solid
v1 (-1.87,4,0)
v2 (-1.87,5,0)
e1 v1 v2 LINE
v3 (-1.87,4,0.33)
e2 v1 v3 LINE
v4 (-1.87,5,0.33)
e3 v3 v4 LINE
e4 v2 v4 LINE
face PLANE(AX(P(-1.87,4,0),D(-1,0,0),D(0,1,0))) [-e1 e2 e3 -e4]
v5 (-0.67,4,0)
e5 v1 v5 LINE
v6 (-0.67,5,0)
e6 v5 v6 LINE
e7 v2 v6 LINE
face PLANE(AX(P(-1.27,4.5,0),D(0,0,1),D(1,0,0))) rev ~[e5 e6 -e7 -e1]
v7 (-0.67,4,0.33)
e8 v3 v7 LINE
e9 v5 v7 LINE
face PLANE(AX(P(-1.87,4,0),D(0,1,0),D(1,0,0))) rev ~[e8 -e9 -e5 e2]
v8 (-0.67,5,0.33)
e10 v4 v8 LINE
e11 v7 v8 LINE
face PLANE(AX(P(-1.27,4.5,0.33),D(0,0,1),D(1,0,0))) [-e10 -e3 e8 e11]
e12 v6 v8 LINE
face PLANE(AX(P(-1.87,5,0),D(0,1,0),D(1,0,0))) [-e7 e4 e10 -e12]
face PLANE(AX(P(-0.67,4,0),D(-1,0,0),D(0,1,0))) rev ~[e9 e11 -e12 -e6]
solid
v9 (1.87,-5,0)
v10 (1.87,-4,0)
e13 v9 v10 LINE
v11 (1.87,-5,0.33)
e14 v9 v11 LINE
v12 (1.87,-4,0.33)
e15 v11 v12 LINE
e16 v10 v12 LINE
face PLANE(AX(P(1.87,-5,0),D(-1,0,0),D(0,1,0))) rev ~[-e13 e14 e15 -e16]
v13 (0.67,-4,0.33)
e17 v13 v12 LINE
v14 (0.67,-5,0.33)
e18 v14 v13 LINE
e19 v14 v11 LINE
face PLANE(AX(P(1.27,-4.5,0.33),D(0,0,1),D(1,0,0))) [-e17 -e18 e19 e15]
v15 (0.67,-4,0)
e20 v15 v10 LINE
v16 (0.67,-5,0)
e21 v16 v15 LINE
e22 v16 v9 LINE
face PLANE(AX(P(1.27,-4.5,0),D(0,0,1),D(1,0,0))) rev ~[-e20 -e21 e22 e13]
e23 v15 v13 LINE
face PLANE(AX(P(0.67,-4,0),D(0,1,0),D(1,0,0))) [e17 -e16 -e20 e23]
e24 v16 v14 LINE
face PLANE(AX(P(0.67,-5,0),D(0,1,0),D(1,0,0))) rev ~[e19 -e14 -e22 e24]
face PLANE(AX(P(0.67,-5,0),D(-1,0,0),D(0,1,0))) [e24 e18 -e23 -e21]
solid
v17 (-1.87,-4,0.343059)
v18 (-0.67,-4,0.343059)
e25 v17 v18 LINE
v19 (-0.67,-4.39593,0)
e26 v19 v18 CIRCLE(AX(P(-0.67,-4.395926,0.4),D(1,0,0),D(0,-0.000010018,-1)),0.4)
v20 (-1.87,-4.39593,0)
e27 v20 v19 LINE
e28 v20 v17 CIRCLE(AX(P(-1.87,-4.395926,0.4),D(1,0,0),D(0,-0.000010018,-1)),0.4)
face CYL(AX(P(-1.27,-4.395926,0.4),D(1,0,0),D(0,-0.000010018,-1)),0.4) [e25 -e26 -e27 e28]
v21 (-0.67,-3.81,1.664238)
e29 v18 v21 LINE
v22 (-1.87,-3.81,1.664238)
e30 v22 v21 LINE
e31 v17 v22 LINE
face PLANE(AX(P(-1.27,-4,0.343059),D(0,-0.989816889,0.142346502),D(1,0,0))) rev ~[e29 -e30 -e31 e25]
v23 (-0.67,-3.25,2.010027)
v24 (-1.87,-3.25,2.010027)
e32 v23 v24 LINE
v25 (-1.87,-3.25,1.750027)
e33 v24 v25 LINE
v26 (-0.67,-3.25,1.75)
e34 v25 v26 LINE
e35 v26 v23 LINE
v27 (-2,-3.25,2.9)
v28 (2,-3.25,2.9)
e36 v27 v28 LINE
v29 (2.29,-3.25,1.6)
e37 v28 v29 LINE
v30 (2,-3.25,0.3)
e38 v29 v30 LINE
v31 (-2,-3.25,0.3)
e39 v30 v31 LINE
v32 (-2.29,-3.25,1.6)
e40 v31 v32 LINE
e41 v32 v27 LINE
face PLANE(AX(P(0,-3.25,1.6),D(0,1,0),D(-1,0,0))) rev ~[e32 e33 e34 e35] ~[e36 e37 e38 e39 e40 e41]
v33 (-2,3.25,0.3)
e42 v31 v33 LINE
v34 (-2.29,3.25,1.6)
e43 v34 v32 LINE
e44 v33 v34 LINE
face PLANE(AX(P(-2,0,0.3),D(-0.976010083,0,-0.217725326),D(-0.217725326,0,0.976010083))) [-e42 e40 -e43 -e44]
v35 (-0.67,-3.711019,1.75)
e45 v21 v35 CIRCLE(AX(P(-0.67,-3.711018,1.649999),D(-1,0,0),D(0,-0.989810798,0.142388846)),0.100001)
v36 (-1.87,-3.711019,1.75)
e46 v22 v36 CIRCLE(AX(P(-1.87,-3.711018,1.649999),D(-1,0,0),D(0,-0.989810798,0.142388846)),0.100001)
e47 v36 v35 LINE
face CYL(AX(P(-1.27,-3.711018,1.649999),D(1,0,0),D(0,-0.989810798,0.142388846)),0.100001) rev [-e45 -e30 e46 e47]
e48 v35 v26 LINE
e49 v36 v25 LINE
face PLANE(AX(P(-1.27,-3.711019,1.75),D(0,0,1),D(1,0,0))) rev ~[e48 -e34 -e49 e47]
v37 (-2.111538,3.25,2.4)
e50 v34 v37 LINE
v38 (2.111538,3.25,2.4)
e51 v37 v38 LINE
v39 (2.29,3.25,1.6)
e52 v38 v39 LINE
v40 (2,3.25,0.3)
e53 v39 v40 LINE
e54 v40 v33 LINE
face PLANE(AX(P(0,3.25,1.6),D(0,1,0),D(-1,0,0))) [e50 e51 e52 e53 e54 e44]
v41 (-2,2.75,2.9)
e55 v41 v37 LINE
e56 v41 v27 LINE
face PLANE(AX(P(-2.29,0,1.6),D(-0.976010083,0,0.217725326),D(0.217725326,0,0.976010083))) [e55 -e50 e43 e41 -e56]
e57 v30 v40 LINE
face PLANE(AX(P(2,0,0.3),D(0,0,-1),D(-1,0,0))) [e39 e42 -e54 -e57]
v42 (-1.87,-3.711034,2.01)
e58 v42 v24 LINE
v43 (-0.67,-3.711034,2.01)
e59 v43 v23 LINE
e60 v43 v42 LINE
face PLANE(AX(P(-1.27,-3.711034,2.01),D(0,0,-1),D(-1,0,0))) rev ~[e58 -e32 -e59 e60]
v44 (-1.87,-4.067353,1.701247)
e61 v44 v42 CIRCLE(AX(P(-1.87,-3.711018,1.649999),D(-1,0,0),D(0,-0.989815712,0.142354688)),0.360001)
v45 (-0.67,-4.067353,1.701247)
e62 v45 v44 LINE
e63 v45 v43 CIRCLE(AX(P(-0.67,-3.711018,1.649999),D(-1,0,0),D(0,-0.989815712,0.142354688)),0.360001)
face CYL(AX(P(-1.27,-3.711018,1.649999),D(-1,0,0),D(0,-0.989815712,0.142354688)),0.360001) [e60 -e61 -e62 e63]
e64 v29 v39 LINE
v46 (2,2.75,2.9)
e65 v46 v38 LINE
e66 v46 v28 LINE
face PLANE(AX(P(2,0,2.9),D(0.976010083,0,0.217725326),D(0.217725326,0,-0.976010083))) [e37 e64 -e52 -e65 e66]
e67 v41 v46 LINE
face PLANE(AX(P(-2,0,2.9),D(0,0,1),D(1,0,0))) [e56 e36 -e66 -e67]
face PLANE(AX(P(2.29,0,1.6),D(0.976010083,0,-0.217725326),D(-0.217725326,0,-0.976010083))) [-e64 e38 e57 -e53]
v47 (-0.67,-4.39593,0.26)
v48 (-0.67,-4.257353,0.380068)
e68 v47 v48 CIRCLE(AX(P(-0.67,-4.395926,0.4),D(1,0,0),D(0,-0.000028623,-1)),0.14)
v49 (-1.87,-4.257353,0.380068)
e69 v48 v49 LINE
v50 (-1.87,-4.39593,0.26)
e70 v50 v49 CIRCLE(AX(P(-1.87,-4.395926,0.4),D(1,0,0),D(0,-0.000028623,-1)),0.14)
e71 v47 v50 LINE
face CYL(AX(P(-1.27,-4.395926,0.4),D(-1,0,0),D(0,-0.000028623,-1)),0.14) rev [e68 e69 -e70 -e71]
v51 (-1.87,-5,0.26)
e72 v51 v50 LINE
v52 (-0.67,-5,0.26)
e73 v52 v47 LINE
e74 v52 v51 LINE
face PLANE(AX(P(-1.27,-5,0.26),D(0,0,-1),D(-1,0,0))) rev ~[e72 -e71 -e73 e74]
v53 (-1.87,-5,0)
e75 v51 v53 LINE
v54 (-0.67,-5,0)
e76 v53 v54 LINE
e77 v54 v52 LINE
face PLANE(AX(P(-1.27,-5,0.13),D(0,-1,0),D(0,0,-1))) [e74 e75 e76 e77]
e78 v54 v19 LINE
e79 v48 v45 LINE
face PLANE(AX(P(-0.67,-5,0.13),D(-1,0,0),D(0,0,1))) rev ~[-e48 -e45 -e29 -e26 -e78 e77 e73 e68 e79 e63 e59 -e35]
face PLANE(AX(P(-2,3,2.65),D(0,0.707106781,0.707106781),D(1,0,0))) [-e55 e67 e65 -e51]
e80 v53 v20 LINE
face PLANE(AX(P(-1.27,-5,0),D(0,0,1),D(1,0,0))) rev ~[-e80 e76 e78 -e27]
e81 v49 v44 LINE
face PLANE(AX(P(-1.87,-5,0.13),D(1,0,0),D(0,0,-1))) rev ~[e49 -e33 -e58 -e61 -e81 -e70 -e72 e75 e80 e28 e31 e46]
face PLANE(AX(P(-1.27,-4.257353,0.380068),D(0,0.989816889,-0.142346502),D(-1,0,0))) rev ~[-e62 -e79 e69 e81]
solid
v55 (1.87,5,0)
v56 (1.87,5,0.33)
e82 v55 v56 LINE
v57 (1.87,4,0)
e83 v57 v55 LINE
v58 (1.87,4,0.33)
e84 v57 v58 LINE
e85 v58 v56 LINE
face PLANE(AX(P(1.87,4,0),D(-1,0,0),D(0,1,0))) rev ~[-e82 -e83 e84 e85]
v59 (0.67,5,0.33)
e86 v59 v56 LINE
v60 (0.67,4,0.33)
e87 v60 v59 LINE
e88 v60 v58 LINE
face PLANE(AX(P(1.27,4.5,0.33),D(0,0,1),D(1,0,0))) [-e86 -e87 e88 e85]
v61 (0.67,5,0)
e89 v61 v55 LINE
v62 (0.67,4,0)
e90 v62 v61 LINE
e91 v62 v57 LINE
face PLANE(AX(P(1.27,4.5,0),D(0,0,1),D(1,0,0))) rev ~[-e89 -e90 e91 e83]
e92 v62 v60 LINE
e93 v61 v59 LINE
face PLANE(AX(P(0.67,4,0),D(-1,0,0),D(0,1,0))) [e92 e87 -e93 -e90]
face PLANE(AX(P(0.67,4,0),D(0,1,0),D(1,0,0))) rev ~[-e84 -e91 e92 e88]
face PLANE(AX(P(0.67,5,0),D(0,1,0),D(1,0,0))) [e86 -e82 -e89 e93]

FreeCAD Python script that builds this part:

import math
import FreeCAD as App
import Part
import Sketcher
from FreeCAD import Vector
Q = App.Units.Quantity


def edges_at(feature, points):
    """Names of the edges that pass closest to the given points."""
    edges = feature.Shape.Edges
    near = lambda p: min(range(len(edges)), key=lambda i: edges[i].distToShape(Part.Vertex(*p))[0])
    return sorted({f"Edge{near(p) + 1}" for p in points})

doc = App.newDocument("Part")
body = doc.addObject("PartDesign::Body", "Body")
body.AllowCompound = True

# Sketch on XY plane
sketch1 = body.newObject("Sketcher::SketchObject", "Sketch")
sketch1.AttachmentSupport = (doc.getObject("XY_Plane"), [""])
sketch1.MapMode = "FlatFace"
sketch1.addGeometry(Part.LineSegment(Vector(0.7, -4, 0), Vector(0.7, -5, 0)), False)
sketch1.addGeometry(Part.LineSegment(Vector(0.7, -5, 0), Vector(1.9, -5, 0)), False)
sketch1.addGeometry(Part.LineSegment(Vector(1.9, -5, 0), Vector(1.9, -4, 0)), False)
sketch1.addGeometry(Part.LineSegment(Vector(1.9, -4, 0), Vector(0.7, -4, 0)), False)
sketch1.addGeometry(Part.LineSegment(Vector(0.7, 5, 0), Vector(0.7, 4, 0)), False)
sketch1.addGeometry(Part.LineSegment(Vector(0.7, 4, 0), Vector(1.9, 4, 0)), False)
sketch1.addGeometry(Part.LineSegment(Vector(1.9, 4, 0), Vector(1.9, 5, 0)), False)
sketch1.addGeometry(Part.LineSegment(Vector(1.9, 5, 0), Vector(0.7, 5, 0)), False)
sketch1.addGeometry(Part.LineSegment(Vector(-1.9, 5, 0), Vector(-1.9, 4, 0)), False)
sketch1.addGeometry(Part.LineSegment(Vector(-1.9, 4, 0), Vector(-0.7, 4, 0)), False)
sketch1.addGeometry(Part.LineSegment(Vector(-0.7, 4, 0), Vector(-0.7, 5, 0)), False)
sketch1.addGeometry(Part.LineSegment(Vector(-0.7, 5, 0), Vector(-1.9, 5, 0)), False)
sketch1.addConstraint(Sketcher.Constraint("Coincident", 0, 2, 1, 1))
sketch1.addConstraint(Sketcher.Constraint("Coincident", 1, 2, 2, 1))
sketch1.addConstraint(Sketcher.Constraint("Coincident", 2, 2, 3, 1))
sketch1.addConstraint(Sketcher.Constraint("Coincident", 3, 2, 0, 1))
sketch1.addConstraint(Sketcher.Constraint("Coincident", 4, 2, 5, 1))
sketch1.addConstraint(Sketcher.Constraint("Coincident", 5, 2, 6, 1))
sketch1.addConstraint(Sketcher.Constraint("Coincident", 6, 2, 7, 1))
sketch1.addConstraint(Sketcher.Constraint("Coincident", 7, 2, 4, 1))
sketch1.addConstraint(Sketcher.Constraint("Coincident", 8, 2, 9, 1))
sketch1.addConstraint(Sketcher.Constraint("Coincident", 9, 2, 10, 1))
sketch1.addConstraint(Sketcher.Constraint("Coincident", 10, 2, 11, 1))
sketch1.addConstraint(Sketcher.Constraint("Coincident", 11, 2, 8, 1))
sketch1.addConstraint(Sketcher.Constraint("Vertical", 0))
sketch1.addConstraint(Sketcher.Constraint("Horizontal", 1))
sketch1.addConstraint(Sketcher.Constraint("Vertical", 2))
sketch1.addConstraint(Sketcher.Constraint("Horizontal", 3))
sketch1.addConstraint(Sketcher.Constraint("Vertical", 4))
sketch1.addConstraint(Sketcher.Constraint("Horizontal", 5))
sketch1.addConstraint(Sketcher.Constraint("Vertical", 6))
sketch1.addConstraint(Sketcher.Constraint("Horizontal", 7))
sketch1.addConstraint(Sketcher.Constraint("Vertical", 8))
sketch1.addConstraint(Sketcher.Constraint("Horizontal", 9))
sketch1.addConstraint(Sketcher.Constraint("Vertical", 10))
sketch1.addConstraint(Sketcher.Constraint("Horizontal", 11))
sketch1.addConstraint(Sketcher.Constraint("Symmetric", 2, 2, 8, 2, -1, 1))
sketch1.addConstraint(Sketcher.Constraint("Symmetric", 0, 2, 10, 2, -1, 1))
sketch1.addConstraint(Sketcher.Constraint("Symmetric", 5, 2, 8, 2, -2))
sketch1.addConstraint(Sketcher.Constraint("Symmetric", 7, 2, 10, 2, -2))
sketch1.addConstraint(Sketcher.Constraint("DistanceY", 0, 2, 0, 1, Q("1 mm")))
sketch1.addConstraint(Sketcher.Constraint("DistanceX", 1, 1, 1, 2, Q("1.2 mm")))
sketch1.addConstraint(Sketcher.Constraint("DistanceY", 0, 2, -1, 1, Q("5 mm")))
sketch1.addConstraint(Sketcher.Constraint("DistanceX", -1, 1, 0, 2, Q("0.67 mm")))
pad1 = body.newObject("PartDesign::Pad", "Pad")
pad1.Profile = sketch1
pad1.Length = 0.33
body2 = doc.addObject("PartDesign::Body", "Body001")

# Sketch on XZ plane
sketch2 = body2.newObject("Sketcher::SketchObject", "Sketch001")
sketch2.AttachmentSupport = (doc.getObject("XZ_Plane001"), [""])
sketch2.MapMode = "FlatFace"
sketch2.AttachmentOffset = App.Placement(Vector(0, 0, 5), App.Rotation())
sketch2.addGeometry(Part.LineSegment(Vector(-1.87, 0.26, 0), Vector(-1.87, 0, 0)), False)
sketch2.addGeometry(Part.LineSegment(Vector(-1.87, 0, 0), Vector(-0.67, 0, 0)), False)
sketch2.addGeometry(Part.LineSegment(Vector(-0.67, 0, 0), Vector(-0.67, 0.26, 0)), False)
sketch2.addGeometry(Part.LineSegment(Vector(-0.67, 0.26, 0), Vector(-1.87, 0.26, 0)), False)
sketch2.addConstraint(Sketcher.Constraint("Coincident", 0, 2, 1, 1))
sketch2.addConstraint(Sketcher.Constraint("Coincident", 1, 2, 2, 1))
sketch2.addConstraint(Sketcher.Constraint("Coincident", 2, 2, 3, 1))
sketch2.addConstraint(Sketcher.Constraint("Coincident", 3, 2, 0, 1))
sketch2.addConstraint(Sketcher.Constraint("Vertical", 0))
sketch2.addConstraint(Sketcher.Constraint("Horizontal", 1))
sketch2.addConstraint(Sketcher.Constraint("Vertical", 2))
sketch2.addConstraint(Sketcher.Constraint("Horizontal", 3))
sketch2.addConstraint(Sketcher.Constraint("PointOnObject", 0, 2, -1))
sketch2.addConstraint(Sketcher.Constraint("DistanceX", 1, 1, 1, 2, Q("1.2 mm")))
sketch2.addConstraint(Sketcher.Constraint("DistanceY", 0, 2, 0, 1, Q("0.26 mm")))
sketch2.addConstraint(Sketcher.Constraint("DistanceX", 0, 2, -1, 1, Q("1.87 mm")))

# Sketch on YZ plane
sketch3 = body2.newObject("Sketcher::SketchObject", "Sketch002")
sketch3.AttachmentSupport = (doc.getObject("YZ_Plane001"), [""])
sketch3.MapMode = "FlatFace"
sketch3.addGeometry(Part.LineSegment(Vector(-5, 0, 0), Vector(-4.4, 0, 0)), False)
sketch3.addGeometry(Part.ArcOfCircle(Part.Circle(Vector(-4.4, 0.4, 0), Vector(0, 0, 1), 0.4), math.radians(-90), math.radians(-8)), False)
sketch3.addGeometry(Part.LineSegment(Vector(-4, 0.34, 0), Vector(-3.81, 1.66, 0)), False)
sketch3.addGeometry(Part.ArcOfCircle(Part.Circle(Vector(-3.71, 1.65, 0), Vector(0, 0, 1), 0.1), math.radians(90), math.radians(172)), False)
sketch3.addGeometry(Part.LineSegment(Vector(-3.71, 1.75, 0), Vector(-2.71, 1.75, 0)), False)
sketch3.addConstraint(Sketcher.Constraint("Coincident", 0, 2, 1, 1))
sketch3.addConstraint(Sketcher.Constraint("Coincident", 1, 2, 2, 1))
sketch3.addConstraint(Sketcher.Constraint("Coincident", 2, 2, 3, 2))
sketch3.addConstraint(Sketcher.Constraint("Coincident", 3, 1, 4, 1))
sketch3.addConstraint(Sketcher.Constraint("Horizontal", 0))
sketch3.addConstraint(Sketcher.Constraint("Horizontal", 4))
sketch3.addConstraint(Sketcher.Constraint("PointOnObject", 0, 1, -1))
sketch3.addConstraint(Sketcher.Constraint("Radius", 1, Q("0.4 mm")))
sketch3.addConstraint(Sketcher.Constraint("Radius", 3, Q("0.100001 mm")))
sketch3.addConstraint(Sketcher.Constraint("DistanceX", 4, 1, 4, 2, Q("1 mm")))
sketch3.addConstraint(Sketcher.Constraint("DistanceX", 0, 1, -1, 1, Q("5 mm")))
sketch3.addConstraint(Sketcher.Constraint("DistanceX", 1, 2, -1, 1, Q("4 mm")))
sketch3.addConstraint(Sketcher.Constraint("DistanceX", 3, 3, 4, 2, Q("0.999999 mm")))
sketch3.addConstraint(Sketcher.Constraint("DistanceY", -1, 1, 3, 3, Q("1.649999 mm")))
sketch3.addConstraint(Sketcher.Constraint("DistanceX", 2, 2, -1, 1, Q("3.81 mm")))
sketch3.addConstraint(Sketcher.Constraint("DistanceX", 0, 1, 0, 2, Q("0.60407 mm")))
sketch3.addConstraint(Sketcher.Constraint("Distance", 2, Q("1.334771 mm")))
sketch3.addConstraint(Sketcher.Constraint("DistanceY", -1, 1, 1, 2, Q("0.343059 mm")))
doc.recompute()

additivepipe = body2.newObject("PartDesign::AdditivePipe", "AdditivePipe")
additivepipe.Profile = sketch2
additivepipe.Spine = (sketch3, ["Edge1", "Edge2", "Edge3", "Edge4", "Edge5"])
body3 = doc.addObject("PartDesign::Body", "Body002")
body3.AllowCompound = True

# Sketch on XZ plane
sketch4 = body3.newObject("Sketcher::SketchObject", "Sketch003")
sketch4.AttachmentSupport = (doc.getObject("XZ_Plane002"), [""])
sketch4.MapMode = "FlatFace"
sketch4.addGeometry(Part.LineSegment(Vector(2, 2.9, 0), Vector(2.3, 1.6, 0)), False)
sketch4.addGeometry(Part.LineSegment(Vector(2.3, 1.6, 0), Vector(2, 0.3, 0)), False)
sketch4.addGeometry(Part.LineSegment(Vector(2, 0.3, 0), Vector(-2, 0.3, 0)), False)
sketch4.addGeometry(Part.LineSegment(Vector(-2, 0.3, 0), Vector(-2.3, 1.6, 0)), False)
sketch4.addGeometry(Part.LineSegment(Vector(-2.3, 1.6, 0), Vector(-2, 2.9, 0)), False)
sketch4.addGeometry(Part.LineSegment(Vector(-2, 2.9, 0), Vector(2, 2.9, 0)), False)
sketch4.addConstraint(Sketcher.Constraint("Coincident", 0, 2, 1, 1))
sketch4.addConstraint(Sketcher.Constraint("Coincident", 1, 2, 2, 1))
sketch4.addConstraint(Sketcher.Constraint("Coincident", 2, 2, 3, 1))
sketch4.addConstraint(Sketcher.Constraint("Coincident", 3, 2, 4, 1))
sketch4.addConstraint(Sketcher.Constraint("Coincident", 4, 2, 5, 1))
sketch4.addConstraint(Sketcher.Constraint("Coincident", 5, 2, 0, 1))
sketch4.addConstraint(Sketcher.Constraint("Horizontal", 2))
sketch4.addConstraint(Sketcher.Constraint("Horizontal", 5))
sketch4.addConstraint(Sketcher.Constraint("Symmetric", 0, 2, 3, 2, -2))
sketch4.addConstraint(Sketcher.Constraint("Parallel", 0, 3))
sketch4.addConstraint(Sketcher.Constraint("Parallel", 1, 4))
sketch4.addConstraint(Sketcher.Constraint("Vertical", 2, 2, 4, 2))
sketch4.addConstraint(Sketcher.Constraint("Vertical", 1, 2, 5, 2))
sketch4.addConstraint(Sketcher.Constraint("DistanceX", 2, 2, 2, 1, Q("4 mm")))
sketch4.addConstraint(Sketcher.Constraint("DistanceY", -1, 1, 0, 2, Q("1.6 mm")))
sketch4.addConstraint(Sketcher.Constraint("DistanceY", -1, 1, 1, 2, Q("0.3 mm")))
sketch4.addConstraint(Sketcher.Constraint("DistanceX", -1, 1, 0, 2, Q("2.29 mm")))
pad2 = body3.newObject("PartDesign::Pad", "Pad001")
pad2.Profile = sketch4
pad2.Length = 6.5
pad2.Midplane = True
doc.recompute()

chamfer = body3.newObject("PartDesign::Chamfer", "Chamfer")
chamfer.Base = (pad2, edges_at(pad2, [(0, 3.25, 2.9)]))
chamfer.Size = 0.5
doc.recompute()

boolean = body3.newObject("PartDesign::Boolean", "Boolean")
boolean.Type = "Fuse"
boolean.addObjects([body])
doc.recompute()

boolean2 = body3.newObject("PartDesign::Boolean", "Boolean001")
boolean2.Type = "Fuse"
boolean2.addObjects([body2])

doc.recompute()
